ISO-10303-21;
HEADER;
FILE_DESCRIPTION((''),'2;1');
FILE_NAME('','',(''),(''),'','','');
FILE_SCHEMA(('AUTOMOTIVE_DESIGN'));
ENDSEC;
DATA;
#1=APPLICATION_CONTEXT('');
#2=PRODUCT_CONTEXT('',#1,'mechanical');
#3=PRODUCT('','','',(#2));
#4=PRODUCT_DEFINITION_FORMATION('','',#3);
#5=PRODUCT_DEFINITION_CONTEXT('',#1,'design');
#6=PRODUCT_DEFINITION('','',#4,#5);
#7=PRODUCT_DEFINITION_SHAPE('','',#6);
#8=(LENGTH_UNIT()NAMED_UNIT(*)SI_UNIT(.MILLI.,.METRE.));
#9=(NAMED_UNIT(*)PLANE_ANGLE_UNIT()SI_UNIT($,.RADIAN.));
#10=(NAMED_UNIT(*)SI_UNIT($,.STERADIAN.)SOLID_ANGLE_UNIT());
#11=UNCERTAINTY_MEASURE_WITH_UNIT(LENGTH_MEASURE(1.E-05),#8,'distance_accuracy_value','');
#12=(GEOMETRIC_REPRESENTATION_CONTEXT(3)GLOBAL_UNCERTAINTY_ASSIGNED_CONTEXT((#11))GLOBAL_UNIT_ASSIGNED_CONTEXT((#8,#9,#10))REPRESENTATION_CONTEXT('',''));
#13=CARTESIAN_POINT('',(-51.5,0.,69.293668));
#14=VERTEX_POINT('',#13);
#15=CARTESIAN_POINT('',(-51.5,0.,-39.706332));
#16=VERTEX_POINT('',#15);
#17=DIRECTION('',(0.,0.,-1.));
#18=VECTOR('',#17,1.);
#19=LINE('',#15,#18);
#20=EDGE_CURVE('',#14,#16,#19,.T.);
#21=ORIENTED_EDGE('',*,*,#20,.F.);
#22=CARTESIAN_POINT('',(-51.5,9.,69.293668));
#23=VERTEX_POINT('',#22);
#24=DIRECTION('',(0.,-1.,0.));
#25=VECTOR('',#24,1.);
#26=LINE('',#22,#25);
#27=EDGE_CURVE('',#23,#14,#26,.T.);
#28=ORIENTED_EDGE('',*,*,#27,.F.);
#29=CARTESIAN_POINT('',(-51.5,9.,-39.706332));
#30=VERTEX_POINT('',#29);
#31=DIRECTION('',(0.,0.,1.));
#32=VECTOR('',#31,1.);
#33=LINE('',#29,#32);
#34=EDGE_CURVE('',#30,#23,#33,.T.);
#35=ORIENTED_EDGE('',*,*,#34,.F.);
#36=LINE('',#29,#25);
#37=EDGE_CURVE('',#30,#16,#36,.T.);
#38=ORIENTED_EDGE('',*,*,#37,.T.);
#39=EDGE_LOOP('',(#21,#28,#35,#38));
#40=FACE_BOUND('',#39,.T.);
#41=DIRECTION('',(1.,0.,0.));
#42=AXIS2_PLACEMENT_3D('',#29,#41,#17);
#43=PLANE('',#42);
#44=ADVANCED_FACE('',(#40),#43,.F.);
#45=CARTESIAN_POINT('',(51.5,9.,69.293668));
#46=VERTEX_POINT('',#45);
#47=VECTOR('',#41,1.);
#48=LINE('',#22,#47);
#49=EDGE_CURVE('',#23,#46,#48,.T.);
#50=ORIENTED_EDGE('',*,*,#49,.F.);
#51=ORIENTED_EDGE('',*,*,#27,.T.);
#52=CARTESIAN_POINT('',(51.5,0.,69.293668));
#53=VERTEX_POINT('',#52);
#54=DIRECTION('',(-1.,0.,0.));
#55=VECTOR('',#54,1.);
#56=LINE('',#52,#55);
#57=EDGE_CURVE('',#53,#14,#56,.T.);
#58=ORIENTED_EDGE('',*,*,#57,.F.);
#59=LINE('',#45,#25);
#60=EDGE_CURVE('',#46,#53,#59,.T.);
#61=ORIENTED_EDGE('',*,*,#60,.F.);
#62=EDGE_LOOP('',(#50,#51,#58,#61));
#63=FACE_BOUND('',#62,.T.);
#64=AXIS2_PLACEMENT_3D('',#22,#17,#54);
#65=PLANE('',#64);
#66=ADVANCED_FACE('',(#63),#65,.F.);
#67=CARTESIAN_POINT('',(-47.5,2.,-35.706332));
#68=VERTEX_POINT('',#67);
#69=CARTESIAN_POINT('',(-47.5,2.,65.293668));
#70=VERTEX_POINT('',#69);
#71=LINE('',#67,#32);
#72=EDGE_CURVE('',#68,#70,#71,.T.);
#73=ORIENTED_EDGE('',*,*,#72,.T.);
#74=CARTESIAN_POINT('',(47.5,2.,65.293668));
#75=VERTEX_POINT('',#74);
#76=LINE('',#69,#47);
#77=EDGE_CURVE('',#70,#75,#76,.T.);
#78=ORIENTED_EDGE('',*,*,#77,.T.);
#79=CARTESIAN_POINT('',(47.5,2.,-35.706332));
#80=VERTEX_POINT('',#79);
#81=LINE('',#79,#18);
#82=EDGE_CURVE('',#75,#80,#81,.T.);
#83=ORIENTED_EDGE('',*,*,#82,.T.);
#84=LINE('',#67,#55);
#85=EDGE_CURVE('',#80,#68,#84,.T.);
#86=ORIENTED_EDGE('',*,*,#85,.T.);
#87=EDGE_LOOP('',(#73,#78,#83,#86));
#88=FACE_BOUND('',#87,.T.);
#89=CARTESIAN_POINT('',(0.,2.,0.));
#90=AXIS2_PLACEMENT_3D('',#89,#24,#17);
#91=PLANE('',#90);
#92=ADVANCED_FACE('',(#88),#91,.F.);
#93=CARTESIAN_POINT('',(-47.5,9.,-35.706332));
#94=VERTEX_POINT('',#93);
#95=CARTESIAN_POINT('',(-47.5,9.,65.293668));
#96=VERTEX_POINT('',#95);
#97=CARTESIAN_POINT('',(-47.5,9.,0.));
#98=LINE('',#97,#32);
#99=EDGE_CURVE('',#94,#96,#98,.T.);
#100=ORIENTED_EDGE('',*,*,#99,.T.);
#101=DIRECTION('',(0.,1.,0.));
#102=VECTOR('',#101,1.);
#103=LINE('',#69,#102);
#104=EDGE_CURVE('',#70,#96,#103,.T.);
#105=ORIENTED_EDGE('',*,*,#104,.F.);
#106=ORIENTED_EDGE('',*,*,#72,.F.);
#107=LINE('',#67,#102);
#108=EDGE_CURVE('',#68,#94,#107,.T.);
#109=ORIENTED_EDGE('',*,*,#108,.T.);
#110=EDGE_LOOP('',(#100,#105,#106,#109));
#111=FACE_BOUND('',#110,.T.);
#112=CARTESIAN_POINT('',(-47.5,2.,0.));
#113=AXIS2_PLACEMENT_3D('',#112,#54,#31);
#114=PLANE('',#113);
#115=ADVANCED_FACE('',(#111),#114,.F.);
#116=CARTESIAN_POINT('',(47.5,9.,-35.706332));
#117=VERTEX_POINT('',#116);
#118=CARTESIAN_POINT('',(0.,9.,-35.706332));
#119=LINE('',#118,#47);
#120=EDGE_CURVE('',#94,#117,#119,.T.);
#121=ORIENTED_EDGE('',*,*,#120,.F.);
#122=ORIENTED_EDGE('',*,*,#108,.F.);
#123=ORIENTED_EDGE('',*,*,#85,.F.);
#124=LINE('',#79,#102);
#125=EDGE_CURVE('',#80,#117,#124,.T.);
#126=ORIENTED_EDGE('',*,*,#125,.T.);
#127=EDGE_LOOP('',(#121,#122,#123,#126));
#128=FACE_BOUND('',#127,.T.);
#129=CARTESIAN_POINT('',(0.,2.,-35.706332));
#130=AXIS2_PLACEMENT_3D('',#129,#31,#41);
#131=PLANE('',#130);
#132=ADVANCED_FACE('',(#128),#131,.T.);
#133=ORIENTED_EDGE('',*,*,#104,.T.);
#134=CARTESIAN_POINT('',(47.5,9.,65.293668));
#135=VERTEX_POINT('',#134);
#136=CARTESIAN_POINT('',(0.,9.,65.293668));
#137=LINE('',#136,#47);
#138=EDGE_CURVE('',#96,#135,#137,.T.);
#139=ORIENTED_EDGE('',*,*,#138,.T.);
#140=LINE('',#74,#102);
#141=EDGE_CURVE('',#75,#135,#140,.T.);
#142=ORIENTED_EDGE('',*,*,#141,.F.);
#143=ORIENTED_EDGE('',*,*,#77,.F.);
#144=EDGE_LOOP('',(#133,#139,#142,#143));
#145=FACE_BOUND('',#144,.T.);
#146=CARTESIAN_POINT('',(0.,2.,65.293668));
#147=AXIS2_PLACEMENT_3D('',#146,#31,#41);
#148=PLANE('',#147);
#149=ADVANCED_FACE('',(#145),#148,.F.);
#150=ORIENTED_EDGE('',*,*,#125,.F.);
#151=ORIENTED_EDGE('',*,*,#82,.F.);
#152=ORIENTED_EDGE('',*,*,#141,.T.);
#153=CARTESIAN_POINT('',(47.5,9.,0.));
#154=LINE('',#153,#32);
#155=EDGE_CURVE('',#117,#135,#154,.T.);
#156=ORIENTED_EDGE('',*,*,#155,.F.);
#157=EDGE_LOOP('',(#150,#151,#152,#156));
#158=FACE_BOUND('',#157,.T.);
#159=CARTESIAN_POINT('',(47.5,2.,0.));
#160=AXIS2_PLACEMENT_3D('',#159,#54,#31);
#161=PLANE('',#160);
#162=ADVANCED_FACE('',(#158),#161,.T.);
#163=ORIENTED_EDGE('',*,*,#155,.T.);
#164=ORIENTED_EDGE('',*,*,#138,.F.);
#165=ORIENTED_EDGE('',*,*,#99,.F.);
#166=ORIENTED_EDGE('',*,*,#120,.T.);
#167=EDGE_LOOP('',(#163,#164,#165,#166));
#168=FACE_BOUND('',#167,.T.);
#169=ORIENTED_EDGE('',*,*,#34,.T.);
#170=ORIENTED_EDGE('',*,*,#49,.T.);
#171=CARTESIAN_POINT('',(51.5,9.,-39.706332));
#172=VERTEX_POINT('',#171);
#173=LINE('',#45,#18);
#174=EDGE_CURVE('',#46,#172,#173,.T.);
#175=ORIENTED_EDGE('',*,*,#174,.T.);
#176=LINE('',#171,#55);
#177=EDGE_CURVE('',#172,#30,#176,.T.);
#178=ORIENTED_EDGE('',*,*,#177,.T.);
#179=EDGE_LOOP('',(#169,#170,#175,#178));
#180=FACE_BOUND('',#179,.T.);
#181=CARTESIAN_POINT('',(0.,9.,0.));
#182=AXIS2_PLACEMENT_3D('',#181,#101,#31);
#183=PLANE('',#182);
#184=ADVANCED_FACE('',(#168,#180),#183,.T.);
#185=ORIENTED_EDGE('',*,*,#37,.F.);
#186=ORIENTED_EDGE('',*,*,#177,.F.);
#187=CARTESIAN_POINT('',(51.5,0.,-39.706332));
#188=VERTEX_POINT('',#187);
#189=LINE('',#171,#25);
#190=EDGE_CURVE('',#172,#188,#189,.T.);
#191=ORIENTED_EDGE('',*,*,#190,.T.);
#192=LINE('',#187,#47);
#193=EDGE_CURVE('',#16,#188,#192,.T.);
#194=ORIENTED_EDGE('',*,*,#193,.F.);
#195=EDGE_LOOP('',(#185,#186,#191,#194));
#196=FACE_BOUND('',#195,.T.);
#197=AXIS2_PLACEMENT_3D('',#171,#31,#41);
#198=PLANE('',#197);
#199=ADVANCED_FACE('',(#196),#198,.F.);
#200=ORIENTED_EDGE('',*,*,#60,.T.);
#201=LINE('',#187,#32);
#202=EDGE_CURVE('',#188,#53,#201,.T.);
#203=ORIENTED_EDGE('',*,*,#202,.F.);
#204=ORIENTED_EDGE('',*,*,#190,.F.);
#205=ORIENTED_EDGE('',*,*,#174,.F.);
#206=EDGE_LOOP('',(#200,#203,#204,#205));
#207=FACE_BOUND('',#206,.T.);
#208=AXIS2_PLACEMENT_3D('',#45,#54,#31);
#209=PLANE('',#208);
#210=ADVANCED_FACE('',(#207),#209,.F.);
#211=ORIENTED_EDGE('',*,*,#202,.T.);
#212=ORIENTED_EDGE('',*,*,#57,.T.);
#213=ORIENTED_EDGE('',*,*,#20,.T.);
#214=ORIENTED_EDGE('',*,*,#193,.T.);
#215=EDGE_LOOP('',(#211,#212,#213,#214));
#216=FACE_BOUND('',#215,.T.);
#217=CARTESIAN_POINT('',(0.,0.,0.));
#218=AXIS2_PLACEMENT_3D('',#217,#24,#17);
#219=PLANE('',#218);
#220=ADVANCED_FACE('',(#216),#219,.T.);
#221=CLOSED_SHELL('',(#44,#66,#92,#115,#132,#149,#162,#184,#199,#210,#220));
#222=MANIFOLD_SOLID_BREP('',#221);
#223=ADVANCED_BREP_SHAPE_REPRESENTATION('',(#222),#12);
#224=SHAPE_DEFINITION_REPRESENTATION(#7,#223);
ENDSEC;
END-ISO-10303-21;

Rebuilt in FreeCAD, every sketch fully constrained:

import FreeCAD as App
import Part
import Sketcher
from FreeCAD import Vector


def add_polygon(sketch, points):
    """Adds a closed chain of lines whose ends are joined by coincident constraints."""
    first, n = sketch.GeometryCount, len(points)
    for a, b in zip(points, points[1:] + points[:1]):
        sketch.addGeometry(Part.LineSegment(App.Vector(*a, 0), App.Vector(*b, 0)), False)
    for i in range(n):
        sketch.addConstraint(Sketcher.Constraint("Coincident", first + i, 2, first + (i + 1) % n, 1))

doc = App.newDocument("Part")
body = doc.addObject("PartDesign::Body", "Body")
body.AllowCompound = True

# Sketch on XZ plane
sketch1 = body.newObject("Sketcher::SketchObject", "Sketch")
sketch1.AttachmentSupport = (doc.getObject("XZ_Plane"), [""])
sketch1.MapMode = "FlatFace"
add_polygon(sketch1, [(-48, -36), (-48, 65), (48, 65), (48, -36)])  # lines 0-3
sketch1.addConstraint([
    Sketcher.Constraint("Vertical", 0),
    Sketcher.Constraint("Horizontal", 1),
    Sketcher.Constraint("Vertical", 2),
    Sketcher.Constraint("Horizontal", 3),
    Sketcher.Constraint("DistanceX", 1, 1, 1, 2, 95.0),
    Sketcher.Constraint("DistanceY", 0, 1, 0, 2, 101.0),
    Sketcher.Constraint("DistanceX", 0, 2, -1, 1, 47.5),
    Sketcher.Constraint("DistanceY", -1, 1, 0, 2, 65.293668),
])
pad1 = body.newObject("PartDesign::Pad", "Pad")
pad1.Profile = sketch1
pad1.Length = 2
pad1.Reversed = True

# Sketch on XZ plane
sketch2 = body.newObject("Sketcher::SketchObject", "Sketch001")
sketch2.AttachmentSupport = (doc.getObject("XZ_Plane"), [""])
sketch2.MapMode = "FlatFace"
sketch2.AttachmentOffset = App.Placement(Vector(0, 0, -2), App.Rotation())
add_polygon(sketch2, [(-52, -40), (-52, 69), (52, 69), (52, -40)])  # lines 0-3
sketch2.addConstraint([
    Sketcher.Constraint("Vertical", 0),
    Sketcher.Constraint("Horizontal", 1),
    Sketcher.Constraint("Vertical", 2),
    Sketcher.Constraint("Horizontal", 3),
    Sketcher.Constraint("DistanceX", 1, 1, 1, 2, 103.0),
    Sketcher.Constraint("DistanceY", 0, 1, 0, 2, 109.0),
    Sketcher.Constraint("DistanceX", 0, 2, -1, 1, 51.5),
    Sketcher.Constraint("DistanceY", -1, 1, 0, 2, 69.293668),
])
pad2 = body.newObject("PartDesign::Pad", "Pad001")
pad2.Profile = sketch2
pad2.Length = 7
pad2.Reversed = True

# Sketch on XZ plane
sketch3 = body.newObject("Sketcher::SketchObject", "Sketch002")
sketch3.AttachmentSupport = (doc.getObject("XZ_Plane"), [""])
sketch3.MapMode = "FlatFace"
sketch3.AttachmentOffset = App.Placement(Vector(0, 0, -9), App.Rotation())
add_polygon(sketch3, [(-48, 65), (48, 65), (48, -36), (-48, -36)])  # lines 0-3
sketch3.addConstraint([
    Sketcher.Constraint("Horizontal", 0),
    Sketcher.Constraint("Vertical", 1),
    Sketcher.Constraint("Horizontal", 2),
    Sketcher.Constraint("Vertical", 3),
    Sketcher.Constraint("DistanceX", 0, 1, 0, 2, 95.0),
    Sketcher.Constraint("DistanceY", 1, 2, 1, 1, 101.0),
    Sketcher.Constraint("DistanceX", -1, 1, 0, 2, 47.5),
    Sketcher.Constraint("DistanceY", -1, 1, 0, 2, 65.293668),
])
pocket1 = body.newObject("PartDesign::Pocket", "Pocket")
pocket1.Profile = sketch3
pocket1.Length = 7
pocket1.Reversed = True

# Sketch on XZ plane
sketch4 = body.newObject("Sketcher::SketchObject", "Sketch003")
sketch4.AttachmentSupport = (doc.getObject("XZ_Plane"), [""])
sketch4.MapMode = "FlatFace"
sketch4.AttachmentOffset = App.Placement(Vector(0, 0, -2), App.Rotation())
add_polygon(sketch4, [(-52, 69), (-52, -40), (52, -40), (52, 69)])  # lines 0-3
sketch4.addConstraint([
    Sketcher.Constraint("Vertical", 0),
    Sketcher.Constraint("Horizontal", 1),
    Sketcher.Constraint("Vertical", 2),
    Sketcher.Constraint("Horizontal", 3),
    Sketcher.Constraint("DistanceX", 1, 1, 1, 2, 103.0),
    Sketcher.Constraint("DistanceY", 0, 2, 0, 1, 109.0),
    Sketcher.Constraint("DistanceX", 0, 2, -1, 1, 51.5),
    Sketcher.Constraint("DistanceY", 0, 2, -1, 1, 39.706332),
])
pad3 = body.newObject("PartDesign::Pad", "Pad002")
pad3.Profile = sketch4
pad3.Type = "UpToLast"

doc.recompute()
